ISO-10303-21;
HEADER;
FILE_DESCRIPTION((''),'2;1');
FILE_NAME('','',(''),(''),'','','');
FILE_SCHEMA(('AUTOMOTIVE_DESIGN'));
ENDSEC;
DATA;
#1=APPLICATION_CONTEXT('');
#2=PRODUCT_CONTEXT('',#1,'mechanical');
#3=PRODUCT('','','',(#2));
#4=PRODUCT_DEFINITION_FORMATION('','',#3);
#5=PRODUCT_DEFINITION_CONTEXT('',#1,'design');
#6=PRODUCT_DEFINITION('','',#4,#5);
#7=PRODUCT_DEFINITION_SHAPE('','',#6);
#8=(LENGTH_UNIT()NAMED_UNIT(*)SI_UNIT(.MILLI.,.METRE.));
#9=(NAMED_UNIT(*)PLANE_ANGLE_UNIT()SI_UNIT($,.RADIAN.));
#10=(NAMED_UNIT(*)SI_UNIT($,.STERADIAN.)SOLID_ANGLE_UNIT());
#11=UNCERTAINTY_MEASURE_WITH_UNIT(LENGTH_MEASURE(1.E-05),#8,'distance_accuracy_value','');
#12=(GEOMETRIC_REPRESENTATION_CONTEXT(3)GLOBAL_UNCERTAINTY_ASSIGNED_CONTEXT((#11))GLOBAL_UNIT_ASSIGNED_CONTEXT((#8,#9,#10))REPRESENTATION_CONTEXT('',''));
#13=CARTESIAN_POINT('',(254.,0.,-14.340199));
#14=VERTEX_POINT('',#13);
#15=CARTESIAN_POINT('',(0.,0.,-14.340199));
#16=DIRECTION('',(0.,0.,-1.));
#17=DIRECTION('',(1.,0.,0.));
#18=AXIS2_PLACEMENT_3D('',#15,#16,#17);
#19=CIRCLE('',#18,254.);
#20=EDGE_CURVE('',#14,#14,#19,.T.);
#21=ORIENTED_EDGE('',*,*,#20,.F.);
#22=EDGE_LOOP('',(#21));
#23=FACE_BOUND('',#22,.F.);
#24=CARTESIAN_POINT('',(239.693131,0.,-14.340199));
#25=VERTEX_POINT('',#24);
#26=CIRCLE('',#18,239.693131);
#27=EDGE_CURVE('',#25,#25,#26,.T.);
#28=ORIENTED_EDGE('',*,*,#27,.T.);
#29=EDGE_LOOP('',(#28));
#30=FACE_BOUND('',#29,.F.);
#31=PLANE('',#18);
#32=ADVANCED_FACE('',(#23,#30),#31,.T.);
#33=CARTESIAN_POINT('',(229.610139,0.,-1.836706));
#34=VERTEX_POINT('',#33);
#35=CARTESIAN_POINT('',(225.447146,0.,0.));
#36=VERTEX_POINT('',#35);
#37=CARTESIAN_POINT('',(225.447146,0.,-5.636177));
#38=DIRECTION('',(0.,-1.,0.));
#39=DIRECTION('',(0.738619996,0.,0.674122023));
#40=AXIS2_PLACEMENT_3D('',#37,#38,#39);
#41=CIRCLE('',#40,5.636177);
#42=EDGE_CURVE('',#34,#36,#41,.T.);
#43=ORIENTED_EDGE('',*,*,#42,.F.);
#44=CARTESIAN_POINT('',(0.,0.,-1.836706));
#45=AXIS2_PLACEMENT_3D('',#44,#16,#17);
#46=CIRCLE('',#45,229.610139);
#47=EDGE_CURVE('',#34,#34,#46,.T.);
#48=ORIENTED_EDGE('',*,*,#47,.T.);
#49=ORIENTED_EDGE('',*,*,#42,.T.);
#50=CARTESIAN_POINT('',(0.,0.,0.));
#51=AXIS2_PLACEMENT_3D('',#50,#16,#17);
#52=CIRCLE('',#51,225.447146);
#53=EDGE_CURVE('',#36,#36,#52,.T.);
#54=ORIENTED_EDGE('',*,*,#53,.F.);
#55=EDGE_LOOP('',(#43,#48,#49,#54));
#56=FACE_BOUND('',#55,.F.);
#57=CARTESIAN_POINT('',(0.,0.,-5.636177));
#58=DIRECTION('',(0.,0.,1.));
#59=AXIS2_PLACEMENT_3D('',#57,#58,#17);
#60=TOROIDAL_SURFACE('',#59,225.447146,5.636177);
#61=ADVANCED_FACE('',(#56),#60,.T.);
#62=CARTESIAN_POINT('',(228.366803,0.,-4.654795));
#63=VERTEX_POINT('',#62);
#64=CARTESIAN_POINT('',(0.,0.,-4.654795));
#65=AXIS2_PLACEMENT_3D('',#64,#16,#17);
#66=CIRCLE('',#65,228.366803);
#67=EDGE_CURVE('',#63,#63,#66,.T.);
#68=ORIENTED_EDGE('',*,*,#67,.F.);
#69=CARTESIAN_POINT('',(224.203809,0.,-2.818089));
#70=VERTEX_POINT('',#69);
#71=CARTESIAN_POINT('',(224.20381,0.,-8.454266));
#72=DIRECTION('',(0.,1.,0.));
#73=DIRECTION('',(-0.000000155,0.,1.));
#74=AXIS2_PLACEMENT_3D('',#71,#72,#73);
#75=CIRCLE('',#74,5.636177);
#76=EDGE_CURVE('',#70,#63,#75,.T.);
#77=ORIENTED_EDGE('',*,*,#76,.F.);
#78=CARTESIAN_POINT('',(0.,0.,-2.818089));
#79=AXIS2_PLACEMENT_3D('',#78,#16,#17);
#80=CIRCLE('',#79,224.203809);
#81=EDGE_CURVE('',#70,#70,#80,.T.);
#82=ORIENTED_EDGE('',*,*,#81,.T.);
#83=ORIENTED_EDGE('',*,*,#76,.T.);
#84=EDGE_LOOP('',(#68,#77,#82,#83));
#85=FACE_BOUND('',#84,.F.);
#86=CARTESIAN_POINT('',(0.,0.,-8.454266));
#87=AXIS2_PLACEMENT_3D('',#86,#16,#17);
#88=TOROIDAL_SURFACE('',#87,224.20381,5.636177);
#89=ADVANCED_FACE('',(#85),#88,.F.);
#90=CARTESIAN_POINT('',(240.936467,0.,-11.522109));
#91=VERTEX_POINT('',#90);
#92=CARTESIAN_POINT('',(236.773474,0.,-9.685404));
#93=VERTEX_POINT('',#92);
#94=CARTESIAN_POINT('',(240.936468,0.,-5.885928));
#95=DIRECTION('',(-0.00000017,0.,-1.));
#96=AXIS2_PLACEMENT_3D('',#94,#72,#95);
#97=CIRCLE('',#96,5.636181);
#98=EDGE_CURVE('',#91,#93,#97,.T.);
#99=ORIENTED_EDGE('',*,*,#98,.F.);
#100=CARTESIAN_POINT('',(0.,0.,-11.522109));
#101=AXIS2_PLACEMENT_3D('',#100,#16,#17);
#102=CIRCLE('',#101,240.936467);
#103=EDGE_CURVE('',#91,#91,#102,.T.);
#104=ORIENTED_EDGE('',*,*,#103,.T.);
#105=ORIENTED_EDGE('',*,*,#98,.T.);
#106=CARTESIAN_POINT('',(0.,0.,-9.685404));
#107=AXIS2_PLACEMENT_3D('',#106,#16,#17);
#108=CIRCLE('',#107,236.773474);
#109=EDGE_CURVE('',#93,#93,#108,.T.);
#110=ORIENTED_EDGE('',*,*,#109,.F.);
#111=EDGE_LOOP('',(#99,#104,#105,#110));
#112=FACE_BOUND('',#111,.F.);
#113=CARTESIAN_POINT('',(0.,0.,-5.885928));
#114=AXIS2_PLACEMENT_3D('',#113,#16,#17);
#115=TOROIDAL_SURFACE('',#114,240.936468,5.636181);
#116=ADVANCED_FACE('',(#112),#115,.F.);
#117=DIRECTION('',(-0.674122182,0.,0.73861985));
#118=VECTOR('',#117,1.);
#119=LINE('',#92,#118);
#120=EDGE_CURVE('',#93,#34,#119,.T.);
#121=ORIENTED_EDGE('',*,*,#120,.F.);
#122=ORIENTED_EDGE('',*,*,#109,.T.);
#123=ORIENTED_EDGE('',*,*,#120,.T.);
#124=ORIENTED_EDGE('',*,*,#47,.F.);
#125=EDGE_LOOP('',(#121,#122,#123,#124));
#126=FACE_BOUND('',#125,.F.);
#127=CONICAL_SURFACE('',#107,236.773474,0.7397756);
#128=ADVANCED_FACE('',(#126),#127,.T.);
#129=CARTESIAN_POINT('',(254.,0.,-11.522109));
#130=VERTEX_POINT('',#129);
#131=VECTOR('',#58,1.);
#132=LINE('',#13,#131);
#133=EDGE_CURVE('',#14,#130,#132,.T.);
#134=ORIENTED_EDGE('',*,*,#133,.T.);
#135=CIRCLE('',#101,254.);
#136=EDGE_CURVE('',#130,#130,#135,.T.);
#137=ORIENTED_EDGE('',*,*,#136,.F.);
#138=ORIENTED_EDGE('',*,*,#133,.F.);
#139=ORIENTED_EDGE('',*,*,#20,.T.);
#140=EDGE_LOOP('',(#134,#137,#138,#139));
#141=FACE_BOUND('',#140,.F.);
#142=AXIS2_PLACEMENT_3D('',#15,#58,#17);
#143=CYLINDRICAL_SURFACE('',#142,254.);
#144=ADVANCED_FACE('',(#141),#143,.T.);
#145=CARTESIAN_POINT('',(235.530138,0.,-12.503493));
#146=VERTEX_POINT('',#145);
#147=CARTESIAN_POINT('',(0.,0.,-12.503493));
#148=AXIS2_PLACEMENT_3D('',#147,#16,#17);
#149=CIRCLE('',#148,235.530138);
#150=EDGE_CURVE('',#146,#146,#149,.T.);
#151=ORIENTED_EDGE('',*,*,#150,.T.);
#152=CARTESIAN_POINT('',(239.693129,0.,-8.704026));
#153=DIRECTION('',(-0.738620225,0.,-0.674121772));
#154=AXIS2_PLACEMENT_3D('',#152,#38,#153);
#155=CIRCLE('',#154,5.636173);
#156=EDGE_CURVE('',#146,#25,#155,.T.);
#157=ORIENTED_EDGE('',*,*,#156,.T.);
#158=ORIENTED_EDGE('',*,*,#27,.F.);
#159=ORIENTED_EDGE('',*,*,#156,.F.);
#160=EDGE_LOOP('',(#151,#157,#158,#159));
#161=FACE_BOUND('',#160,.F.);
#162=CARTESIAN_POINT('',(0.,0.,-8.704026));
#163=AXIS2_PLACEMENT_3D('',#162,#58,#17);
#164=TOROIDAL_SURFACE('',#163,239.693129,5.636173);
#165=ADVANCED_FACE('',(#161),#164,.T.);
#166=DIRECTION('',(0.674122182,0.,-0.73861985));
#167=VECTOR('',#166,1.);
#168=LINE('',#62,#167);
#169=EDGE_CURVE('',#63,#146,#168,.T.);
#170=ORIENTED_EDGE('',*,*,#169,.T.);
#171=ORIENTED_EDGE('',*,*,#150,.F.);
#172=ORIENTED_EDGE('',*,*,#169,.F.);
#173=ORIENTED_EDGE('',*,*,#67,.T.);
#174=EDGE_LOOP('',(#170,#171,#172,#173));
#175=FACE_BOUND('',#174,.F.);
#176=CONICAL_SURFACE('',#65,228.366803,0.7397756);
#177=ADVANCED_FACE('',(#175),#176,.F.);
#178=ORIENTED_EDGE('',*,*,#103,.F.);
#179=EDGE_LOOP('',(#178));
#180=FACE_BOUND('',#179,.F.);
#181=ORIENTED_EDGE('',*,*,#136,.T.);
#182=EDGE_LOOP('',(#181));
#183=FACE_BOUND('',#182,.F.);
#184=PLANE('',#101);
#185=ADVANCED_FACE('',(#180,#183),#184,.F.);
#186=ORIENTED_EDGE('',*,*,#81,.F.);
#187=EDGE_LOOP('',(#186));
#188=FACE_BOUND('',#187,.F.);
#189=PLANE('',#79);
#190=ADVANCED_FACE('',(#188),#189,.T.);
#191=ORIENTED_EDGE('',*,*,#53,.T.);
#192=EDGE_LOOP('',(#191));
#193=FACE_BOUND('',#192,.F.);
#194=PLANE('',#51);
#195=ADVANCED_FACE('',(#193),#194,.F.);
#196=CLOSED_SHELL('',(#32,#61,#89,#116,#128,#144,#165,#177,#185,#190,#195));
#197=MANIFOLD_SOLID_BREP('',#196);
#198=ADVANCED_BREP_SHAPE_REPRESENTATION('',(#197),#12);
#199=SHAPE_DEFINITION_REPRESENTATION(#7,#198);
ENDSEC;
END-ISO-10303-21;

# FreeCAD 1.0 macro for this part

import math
import FreeCAD as App
import Part
import Sketcher
from FreeCAD import Vector
Q = App.Units.Quantity

doc = App.newDocument("Part")
body = doc.addObject("PartDesign::Body", "Body")

# Sketch on XZ plane
sketch1 = body.newObject("Sketcher::SketchObject", "Sketch")
sketch1.AttachmentSupport = (doc.getObject("XZ_Plane"), [""])
sketch1.MapMode = "FlatFace"
sketch1.addGeometry([
    Part.LineSegment(Vector(225.4, 0, 0), Vector(0, 0, 0)),  # 0
    Part.LineSegment(Vector(0, 0, 0), Vector(0, -2.8, 0)),  # 1
    Part.LineSegment(Vector(0, -2.8, 0), Vector(224.2, -2.8, 0)),  # 2
    Part.ArcOfCircle(Part.Circle(Vector(224.2, -8.5, 0), Vector(0, 0, 1), 5.6), math.radians(42), math.radians(90)),  # 3
    Part.LineSegment(Vector(228.4, -4.7, 0), Vector(235.5, -12.5, 0)),  # 4
    Part.ArcOfCircle(Part.Circle(Vector(239.7, -8.7, 0), Vector(0, 0, 1), 5.6), math.radians(-138), math.radians(-90)),  # 5
    Part.LineSegment(Vector(239.7, -14.3, 0), Vector(254, -14.3, 0)),  # 6
    Part.LineSegment(Vector(254, -14.3, 0), Vector(254, -11.5, 0)),  # 7
    Part.LineSegment(Vector(254, -11.5, 0), Vector(240.9, -11.5, 0)),  # 8
    Part.ArcOfCircle(Part.Circle(Vector(240.9, -5.9, 0), Vector(0, 0, 1), 5.6), math.radians(-138), math.radians(-90)),  # 9
    Part.LineSegment(Vector(236.8, -9.7, 0), Vector(229.6, -1.8, 0)),  # 10
    Part.ArcOfCircle(Part.Circle(Vector(225.4, -5.6, 0), Vector(0, 0, 1), 5.6), math.radians(42), math.radians(90)),  # 11
], False)
sketch1.addConstraint([
    Sketcher.Constraint("Coincident", 0, 2, 1, 1),
    Sketcher.Constraint("Coincident", 1, 2, 2, 1),
    Sketcher.Constraint("Tangent", 2, 2, 3, 2),
    Sketcher.Constraint("Tangent", 3, 1, 4, 1),
    Sketcher.Constraint("Tangent", 4, 2, 5, 1),
    Sketcher.Constraint("Tangent", 5, 2, 6, 1),
    Sketcher.Constraint("Coincident", 6, 2, 7, 1),
    Sketcher.Constraint("Coincident", 7, 2, 8, 1),
    Sketcher.Constraint("Tangent", 8, 2, 9, 2),
    Sketcher.Constraint("Tangent", 9, 1, 10, 1),
    Sketcher.Constraint("Tangent", 10, 2, 11, 1),
    Sketcher.Constraint("Tangent", 11, 2, 0, 1),
    Sketcher.Constraint("Horizontal", 0),
    Sketcher.Constraint("Vertical", 1),
    Sketcher.Constraint("Horizontal", 2),
    Sketcher.Constraint("Horizontal", 6),
    Sketcher.Constraint("Vertical", 7),
    Sketcher.Constraint("Horizontal", 8),
    Sketcher.Constraint("Coincident", 0, 2, -1, 1),
    Sketcher.Constraint("Equal", 3, 11),
    Sketcher.Constraint("Parallel", 4, 10),
    Sketcher.Constraint("Equal", 1, 7),
    Sketcher.Constraint("Equal", 4, 10),
    Sketcher.Constraint("DistanceX", -1, 1, 6, 2, Q("254 mm")),
    Sketcher.Constraint("Radius", 9, Q("5.636181 mm")),
    Sketcher.Constraint("Radius", 3, Q("5.636177 mm")),
    Sketcher.Constraint("DistanceX", 2, 1, 2, 2, Q("224.203809 mm")),
    Sketcher.Constraint("DistanceX", 6, 1, 6, 2, Q("14.306869 mm")),
    Sketcher.Constraint("DistanceY", 1, 2, 1, 1, Q("2.818089 mm")),
    Sketcher.Constraint("DistanceY", 5, 2, -1, 1, Q("14.340199 mm")),
    Sketcher.Constraint("DistanceX", 0, 2, 0, 1, Q("225.447146 mm")),
])
revolution = body.newObject("PartDesign::Revolution", "Revolution")
revolution.Profile = sketch1
revolution.ReferenceAxis = (sketch1, ["V_Axis"])
revolution.Angle = 360

doc.recompute()
